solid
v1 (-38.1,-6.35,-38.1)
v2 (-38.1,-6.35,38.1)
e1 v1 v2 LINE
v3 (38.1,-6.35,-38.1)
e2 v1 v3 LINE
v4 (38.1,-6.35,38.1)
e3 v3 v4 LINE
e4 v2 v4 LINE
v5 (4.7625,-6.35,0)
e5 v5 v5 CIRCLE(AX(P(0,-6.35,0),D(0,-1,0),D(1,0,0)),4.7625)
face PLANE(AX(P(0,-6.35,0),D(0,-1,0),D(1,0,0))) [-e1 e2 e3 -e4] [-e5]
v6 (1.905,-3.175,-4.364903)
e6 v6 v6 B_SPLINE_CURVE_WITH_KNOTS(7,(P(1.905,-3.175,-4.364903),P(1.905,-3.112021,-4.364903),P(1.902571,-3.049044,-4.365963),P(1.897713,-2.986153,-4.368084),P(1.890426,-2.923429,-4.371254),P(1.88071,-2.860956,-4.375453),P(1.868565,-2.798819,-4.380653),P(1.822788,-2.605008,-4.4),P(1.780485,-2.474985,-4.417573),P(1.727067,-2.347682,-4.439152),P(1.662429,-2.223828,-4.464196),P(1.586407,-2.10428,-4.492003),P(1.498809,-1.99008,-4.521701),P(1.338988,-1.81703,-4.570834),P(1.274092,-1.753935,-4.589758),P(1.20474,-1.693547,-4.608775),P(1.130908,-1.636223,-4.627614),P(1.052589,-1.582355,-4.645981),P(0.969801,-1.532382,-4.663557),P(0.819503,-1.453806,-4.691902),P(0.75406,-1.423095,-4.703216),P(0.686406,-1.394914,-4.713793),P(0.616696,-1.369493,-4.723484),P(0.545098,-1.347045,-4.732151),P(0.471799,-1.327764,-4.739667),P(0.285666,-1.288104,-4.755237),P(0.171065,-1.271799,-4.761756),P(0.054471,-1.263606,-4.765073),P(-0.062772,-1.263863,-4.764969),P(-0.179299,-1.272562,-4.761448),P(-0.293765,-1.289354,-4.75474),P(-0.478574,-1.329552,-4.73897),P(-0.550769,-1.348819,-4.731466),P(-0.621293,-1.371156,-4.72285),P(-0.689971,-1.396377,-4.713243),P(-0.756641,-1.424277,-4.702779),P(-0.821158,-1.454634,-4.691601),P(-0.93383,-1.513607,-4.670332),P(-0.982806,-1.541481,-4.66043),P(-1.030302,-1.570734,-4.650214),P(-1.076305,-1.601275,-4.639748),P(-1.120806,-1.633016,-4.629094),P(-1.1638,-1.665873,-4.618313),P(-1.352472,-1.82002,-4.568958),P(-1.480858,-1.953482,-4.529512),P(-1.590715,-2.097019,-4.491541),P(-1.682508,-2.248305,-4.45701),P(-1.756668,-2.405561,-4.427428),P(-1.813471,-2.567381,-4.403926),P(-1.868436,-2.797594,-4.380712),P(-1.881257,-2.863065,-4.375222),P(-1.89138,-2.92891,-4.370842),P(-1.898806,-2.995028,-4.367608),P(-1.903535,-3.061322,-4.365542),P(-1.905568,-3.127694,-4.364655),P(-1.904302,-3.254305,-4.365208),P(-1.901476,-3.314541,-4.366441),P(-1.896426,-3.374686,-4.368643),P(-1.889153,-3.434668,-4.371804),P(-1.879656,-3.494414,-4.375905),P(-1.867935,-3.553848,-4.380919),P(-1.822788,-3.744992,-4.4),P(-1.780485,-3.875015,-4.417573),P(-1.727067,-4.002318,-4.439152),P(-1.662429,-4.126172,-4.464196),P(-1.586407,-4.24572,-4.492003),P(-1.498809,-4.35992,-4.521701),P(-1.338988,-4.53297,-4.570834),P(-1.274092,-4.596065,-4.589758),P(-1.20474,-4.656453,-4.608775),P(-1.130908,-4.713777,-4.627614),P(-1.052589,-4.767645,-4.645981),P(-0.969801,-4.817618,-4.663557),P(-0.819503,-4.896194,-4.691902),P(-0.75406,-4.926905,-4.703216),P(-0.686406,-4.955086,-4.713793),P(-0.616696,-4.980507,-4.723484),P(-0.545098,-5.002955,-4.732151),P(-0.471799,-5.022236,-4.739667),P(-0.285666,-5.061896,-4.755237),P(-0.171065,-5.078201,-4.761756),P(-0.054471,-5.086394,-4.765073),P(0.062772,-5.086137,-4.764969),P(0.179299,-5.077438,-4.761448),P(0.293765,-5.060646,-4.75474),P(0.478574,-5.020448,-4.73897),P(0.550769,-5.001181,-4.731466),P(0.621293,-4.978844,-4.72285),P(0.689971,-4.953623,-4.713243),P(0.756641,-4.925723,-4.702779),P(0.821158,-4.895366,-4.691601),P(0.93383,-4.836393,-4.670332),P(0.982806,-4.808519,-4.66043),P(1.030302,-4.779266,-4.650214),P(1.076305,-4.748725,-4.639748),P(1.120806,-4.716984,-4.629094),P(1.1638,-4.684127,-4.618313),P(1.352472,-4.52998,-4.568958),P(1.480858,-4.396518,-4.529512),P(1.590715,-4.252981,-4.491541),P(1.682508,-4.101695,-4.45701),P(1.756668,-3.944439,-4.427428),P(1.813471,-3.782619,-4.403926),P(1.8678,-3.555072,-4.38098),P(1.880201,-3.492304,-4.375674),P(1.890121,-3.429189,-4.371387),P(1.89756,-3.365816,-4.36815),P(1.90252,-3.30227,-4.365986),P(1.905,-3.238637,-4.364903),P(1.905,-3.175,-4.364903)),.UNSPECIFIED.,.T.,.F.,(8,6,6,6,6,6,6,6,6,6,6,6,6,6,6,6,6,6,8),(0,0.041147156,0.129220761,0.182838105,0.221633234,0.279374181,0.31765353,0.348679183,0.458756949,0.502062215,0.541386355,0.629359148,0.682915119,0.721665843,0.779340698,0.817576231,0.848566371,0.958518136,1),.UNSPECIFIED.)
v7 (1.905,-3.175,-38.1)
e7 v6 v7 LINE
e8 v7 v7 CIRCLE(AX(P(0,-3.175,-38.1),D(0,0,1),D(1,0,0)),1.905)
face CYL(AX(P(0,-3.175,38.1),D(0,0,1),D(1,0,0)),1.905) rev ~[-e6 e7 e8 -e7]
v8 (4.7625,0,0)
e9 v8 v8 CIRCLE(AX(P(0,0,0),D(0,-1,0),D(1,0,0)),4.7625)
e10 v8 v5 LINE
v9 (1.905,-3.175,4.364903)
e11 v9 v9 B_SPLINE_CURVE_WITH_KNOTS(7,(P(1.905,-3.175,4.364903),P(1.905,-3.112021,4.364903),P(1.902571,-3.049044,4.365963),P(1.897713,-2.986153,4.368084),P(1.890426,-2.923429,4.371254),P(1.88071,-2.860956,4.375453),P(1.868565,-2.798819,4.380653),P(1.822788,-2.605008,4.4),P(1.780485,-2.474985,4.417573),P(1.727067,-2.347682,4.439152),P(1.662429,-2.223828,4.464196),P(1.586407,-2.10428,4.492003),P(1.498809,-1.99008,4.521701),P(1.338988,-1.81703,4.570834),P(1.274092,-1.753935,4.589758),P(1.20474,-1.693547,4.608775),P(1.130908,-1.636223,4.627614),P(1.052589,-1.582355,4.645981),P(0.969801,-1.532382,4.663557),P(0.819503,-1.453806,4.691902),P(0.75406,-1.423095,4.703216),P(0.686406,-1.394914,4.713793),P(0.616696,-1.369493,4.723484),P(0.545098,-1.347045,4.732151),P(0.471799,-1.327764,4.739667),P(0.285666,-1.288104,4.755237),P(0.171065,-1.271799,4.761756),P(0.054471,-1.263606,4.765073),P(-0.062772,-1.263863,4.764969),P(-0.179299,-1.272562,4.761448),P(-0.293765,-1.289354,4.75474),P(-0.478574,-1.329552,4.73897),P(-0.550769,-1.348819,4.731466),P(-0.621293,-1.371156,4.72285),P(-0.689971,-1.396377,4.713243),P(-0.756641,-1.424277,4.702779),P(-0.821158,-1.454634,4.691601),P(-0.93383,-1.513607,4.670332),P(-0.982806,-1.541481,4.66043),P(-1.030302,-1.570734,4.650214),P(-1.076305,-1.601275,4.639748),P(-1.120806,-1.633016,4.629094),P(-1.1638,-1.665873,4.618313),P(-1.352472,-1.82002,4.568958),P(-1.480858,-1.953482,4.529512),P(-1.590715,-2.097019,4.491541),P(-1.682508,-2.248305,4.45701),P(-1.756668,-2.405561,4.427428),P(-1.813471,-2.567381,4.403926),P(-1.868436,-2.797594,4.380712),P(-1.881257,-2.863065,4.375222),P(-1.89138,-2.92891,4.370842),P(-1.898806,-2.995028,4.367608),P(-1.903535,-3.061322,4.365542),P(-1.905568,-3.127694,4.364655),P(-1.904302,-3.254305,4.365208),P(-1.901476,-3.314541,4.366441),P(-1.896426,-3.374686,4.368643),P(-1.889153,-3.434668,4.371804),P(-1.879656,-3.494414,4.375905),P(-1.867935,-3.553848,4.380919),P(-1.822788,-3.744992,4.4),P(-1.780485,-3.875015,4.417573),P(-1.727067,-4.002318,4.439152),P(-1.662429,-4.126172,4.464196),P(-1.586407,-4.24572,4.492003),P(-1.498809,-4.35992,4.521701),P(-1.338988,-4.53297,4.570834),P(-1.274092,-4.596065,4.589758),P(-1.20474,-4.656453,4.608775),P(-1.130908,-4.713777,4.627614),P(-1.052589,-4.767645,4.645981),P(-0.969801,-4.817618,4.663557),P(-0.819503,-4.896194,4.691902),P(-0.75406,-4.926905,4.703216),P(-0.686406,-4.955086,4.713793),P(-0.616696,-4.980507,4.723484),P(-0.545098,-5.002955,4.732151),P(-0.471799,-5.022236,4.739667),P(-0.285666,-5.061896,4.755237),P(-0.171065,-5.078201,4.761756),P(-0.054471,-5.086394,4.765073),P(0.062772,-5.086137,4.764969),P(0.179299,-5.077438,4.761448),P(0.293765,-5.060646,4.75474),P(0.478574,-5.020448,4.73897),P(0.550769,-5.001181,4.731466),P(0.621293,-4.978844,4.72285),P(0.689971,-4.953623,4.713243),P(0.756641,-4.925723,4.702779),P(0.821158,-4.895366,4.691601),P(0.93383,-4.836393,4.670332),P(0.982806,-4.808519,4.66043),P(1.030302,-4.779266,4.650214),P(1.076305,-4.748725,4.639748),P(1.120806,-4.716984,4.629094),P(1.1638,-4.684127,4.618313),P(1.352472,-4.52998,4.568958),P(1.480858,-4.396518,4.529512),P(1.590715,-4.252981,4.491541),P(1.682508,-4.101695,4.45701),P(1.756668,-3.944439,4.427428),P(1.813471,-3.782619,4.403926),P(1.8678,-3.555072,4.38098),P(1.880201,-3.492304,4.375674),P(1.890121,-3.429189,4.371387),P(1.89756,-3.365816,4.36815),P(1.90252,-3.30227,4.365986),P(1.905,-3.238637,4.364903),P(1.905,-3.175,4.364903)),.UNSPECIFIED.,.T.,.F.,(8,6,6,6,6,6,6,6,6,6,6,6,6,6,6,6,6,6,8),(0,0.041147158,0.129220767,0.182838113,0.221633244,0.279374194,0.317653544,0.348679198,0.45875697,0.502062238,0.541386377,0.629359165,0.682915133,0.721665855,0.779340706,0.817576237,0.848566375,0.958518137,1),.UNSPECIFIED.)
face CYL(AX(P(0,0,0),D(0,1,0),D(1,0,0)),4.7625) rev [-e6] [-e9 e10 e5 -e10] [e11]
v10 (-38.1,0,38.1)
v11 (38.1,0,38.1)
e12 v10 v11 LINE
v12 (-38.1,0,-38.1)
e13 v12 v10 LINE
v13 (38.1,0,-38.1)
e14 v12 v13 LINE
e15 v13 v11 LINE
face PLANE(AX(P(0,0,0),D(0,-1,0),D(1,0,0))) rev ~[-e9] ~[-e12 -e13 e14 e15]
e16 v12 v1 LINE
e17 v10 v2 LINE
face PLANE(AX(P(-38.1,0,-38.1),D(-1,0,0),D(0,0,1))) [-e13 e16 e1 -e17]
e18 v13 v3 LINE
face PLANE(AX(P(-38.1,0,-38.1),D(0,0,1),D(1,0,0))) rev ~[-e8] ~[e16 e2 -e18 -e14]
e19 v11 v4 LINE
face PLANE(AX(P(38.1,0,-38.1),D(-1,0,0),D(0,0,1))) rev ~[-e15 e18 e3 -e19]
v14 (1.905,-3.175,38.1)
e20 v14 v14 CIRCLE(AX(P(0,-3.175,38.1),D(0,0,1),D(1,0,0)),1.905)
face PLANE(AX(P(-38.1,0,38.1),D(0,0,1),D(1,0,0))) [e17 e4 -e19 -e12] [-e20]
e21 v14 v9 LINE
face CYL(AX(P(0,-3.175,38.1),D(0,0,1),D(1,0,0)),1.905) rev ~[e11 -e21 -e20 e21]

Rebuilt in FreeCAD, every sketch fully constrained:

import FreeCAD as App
import Part
import Sketcher

V = App.Vector
Q = App.Units.Quantity

doc = App.newDocument("Part")
body = doc.addObject("PartDesign::Body", "Body")

# Sketch on XZ plane
sketch1 = body.newObject("Sketcher::SketchObject", "Sketch")
sketch1.AttachmentSupport = (doc.getObject("XZ_Plane"), [""])
sketch1.MapMode = "FlatFace"
sketch1.addGeometry([
    Part.LineSegment(V(-38.1, 38.1, 0), V(-38.1, -38.1, 0)),  # 0
    Part.LineSegment(V(-38.1, -38.1, 0), V(38.1, -38.1, 0)),  # 1
    Part.LineSegment(V(38.1, -38.1, 0), V(38.1, 38.1, 0)),  # 2
    Part.LineSegment(V(38.1, 38.1, 0), V(-38.1, 38.1, 0)),  # 3
    Part.Circle(V(0, 0, 0), V(0, 0, 1), 4.8),  # 4
], False)
sketch1.addConstraint([
    Sketcher.Constraint("Coincident", 0, 2, 1, 1),
    Sketcher.Constraint("Coincident", 1, 2, 2, 1),
    Sketcher.Constraint("Coincident", 2, 2, 3, 1),
    Sketcher.Constraint("Coincident", 3, 2, 0, 1),
    Sketcher.Constraint("Vertical", 0),
    Sketcher.Constraint("Horizontal", 1),
    Sketcher.Constraint("Vertical", 2),
    Sketcher.Constraint("Horizontal", 3),
    Sketcher.Constraint("Coincident", 4, 3, -1, 1),
    Sketcher.Constraint("Symmetric", 0, 2, 2, 2, -1, 1),
    Sketcher.Constraint("Equal", 3, 0),
    Sketcher.Constraint("DistanceX", 1, 1, 1, 2, Q("3 in")),
    Sketcher.Constraint("Diameter", 4, Q("0.375 in")),
])
pad1 = body.newObject("PartDesign::Pad", "Pad")
pad1.Profile = sketch1
pad1.Length = Q("0.25 in")

# Sketch on XY plane
sketch2 = body.newObject("Sketcher::SketchObject", "Sketch001")
sketch2.AttachmentSupport = (doc.getObject("XY_Plane"), [""])
sketch2.MapMode = "FlatFace"
sketch2.AttachmentOffset = App.Placement(V(0, 0, 1.5 * 25.4), App.Rotation())
sketch2.addGeometry(Part.Circle(V(0, -3.2, 0), V(0, 0, 1), 1.9), False)
sketch2.addConstraint([
    Sketcher.Constraint("PointOnObject", 0, 3, -2),
    Sketcher.Constraint("Diameter", 0, Q("0.15 in")),
    Sketcher.Constraint("DistanceY", 0, 3, -1, 1, Q("0.125 in")),
])
pocket1 = body.newObject("PartDesign::Pocket", "Pocket")
pocket1.Profile = sketch2
pocket1.Type = "ThroughAll"

doc.recompute()
